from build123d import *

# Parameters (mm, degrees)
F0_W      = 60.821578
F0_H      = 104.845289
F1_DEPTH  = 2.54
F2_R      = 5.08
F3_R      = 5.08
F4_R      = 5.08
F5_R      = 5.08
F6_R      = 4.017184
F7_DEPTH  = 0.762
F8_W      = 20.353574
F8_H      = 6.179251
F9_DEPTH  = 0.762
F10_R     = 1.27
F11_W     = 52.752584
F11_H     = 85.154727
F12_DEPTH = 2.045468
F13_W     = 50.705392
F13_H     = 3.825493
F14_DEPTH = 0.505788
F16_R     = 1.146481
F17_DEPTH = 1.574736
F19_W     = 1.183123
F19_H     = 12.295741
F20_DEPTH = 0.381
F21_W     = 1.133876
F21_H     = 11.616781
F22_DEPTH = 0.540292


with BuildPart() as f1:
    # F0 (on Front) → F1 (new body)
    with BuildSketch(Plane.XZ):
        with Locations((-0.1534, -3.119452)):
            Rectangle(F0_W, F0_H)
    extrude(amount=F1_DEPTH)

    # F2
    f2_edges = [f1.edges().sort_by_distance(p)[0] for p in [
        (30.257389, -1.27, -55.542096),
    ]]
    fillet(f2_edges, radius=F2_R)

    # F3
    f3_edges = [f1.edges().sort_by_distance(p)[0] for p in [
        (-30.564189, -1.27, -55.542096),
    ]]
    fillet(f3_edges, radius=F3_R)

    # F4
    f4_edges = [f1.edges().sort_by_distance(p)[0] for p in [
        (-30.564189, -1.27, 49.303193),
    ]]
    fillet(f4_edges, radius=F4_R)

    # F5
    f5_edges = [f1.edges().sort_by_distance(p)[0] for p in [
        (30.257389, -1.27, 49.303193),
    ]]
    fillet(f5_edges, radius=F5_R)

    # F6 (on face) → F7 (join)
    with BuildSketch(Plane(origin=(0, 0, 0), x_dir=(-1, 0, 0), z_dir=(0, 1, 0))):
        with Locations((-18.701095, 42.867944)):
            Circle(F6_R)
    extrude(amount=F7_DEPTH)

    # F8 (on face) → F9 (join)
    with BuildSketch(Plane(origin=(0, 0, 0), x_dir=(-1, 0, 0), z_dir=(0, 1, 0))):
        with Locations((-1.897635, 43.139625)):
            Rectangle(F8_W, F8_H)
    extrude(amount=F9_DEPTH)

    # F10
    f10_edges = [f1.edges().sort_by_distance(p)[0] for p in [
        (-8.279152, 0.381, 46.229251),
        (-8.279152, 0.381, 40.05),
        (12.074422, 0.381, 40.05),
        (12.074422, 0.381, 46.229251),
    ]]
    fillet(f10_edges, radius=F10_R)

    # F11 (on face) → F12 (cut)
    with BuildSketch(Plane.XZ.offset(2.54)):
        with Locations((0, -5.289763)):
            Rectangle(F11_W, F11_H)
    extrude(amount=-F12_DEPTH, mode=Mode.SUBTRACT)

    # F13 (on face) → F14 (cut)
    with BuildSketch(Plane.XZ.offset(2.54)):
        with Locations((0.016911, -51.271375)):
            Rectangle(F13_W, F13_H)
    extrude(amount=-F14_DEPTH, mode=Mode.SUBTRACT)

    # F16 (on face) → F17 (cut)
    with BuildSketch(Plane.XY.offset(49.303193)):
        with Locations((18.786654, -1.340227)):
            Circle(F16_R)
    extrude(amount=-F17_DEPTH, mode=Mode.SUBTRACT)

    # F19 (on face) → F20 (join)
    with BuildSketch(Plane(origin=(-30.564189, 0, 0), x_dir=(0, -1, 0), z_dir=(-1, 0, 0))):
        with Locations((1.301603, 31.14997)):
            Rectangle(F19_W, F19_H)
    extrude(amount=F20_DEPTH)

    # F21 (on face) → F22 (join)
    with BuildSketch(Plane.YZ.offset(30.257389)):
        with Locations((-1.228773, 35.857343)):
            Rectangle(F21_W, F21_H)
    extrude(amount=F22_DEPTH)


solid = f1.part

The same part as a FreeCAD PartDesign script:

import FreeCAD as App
import Part
import Sketcher
Q = App.Units.Quantity


def edges_at(feature, points):
    """Names of the edges that pass closest to the given points."""
    edges = feature.Shape.Edges
    near = lambda p: min(range(len(edges)), key=lambda i: edges[i].distToShape(Part.Vertex(*p))[0])
    return sorted({f"Edge{near(p) + 1}" for p in points})


def add_polygon(sketch, points):
    """Adds a closed chain of lines whose ends are joined by coincident constraints."""
    first, n = sketch.GeometryCount, len(points)
    for a, b in zip(points, points[1:] + points[:1]):
        sketch.addGeometry(Part.LineSegment(App.Vector(*a, 0), App.Vector(*b, 0)), False)
    for i in range(n):
        sketch.addConstraint(Sketcher.Constraint("Coincident", first + i, 2, first + (i + 1) % n, 1))

doc = App.newDocument("Part")
body = doc.addObject("PartDesign::Body", "Body")

# Sketch on XZ plane
sketch1 = doc.addObject("Sketcher::SketchObject", "Sketch")
body.addObject(sketch1)
sketch1.AttachmentSupport = (doc.XZ_Plane, [""])
sketch1.MapMode = "FlatFace"
add_polygon(sketch1, [(-30.564189, 49.303193), (-30.564189, -55.542096), (30.257389, -55.542096), (30.257389, 49.303193)])  # lines 0-3
sketch1.addConstraint([
    Sketcher.Constraint("Vertical", 0),
    Sketcher.Constraint("Horizontal", 1),
    Sketcher.Constraint("Vertical", 2),
    Sketcher.Constraint("Horizontal", 3),
    Sketcher.Constraint("DistanceX", 1, 1, 1, 2, 60.821578),
    Sketcher.Constraint("DistanceY", 0, 2, 0, 1, 104.845289),
    Sketcher.Constraint("DistanceX", 0, 2, -1, 1, 30.564189),
    Sketcher.Constraint("DistanceY", 0, 2, -1, 1, 55.542096),
])
pad1 = doc.addObject("PartDesign::Pad", "Pad")
body.addObject(pad1)
pad1.Profile = sketch1
pad1.Length = Q("0.1 in")
doc.recompute()

fillet = doc.addObject("PartDesign::Fillet", "Fillet")
body.addObject(fillet)
fillet.Base = (pad1, edges_at(pad1, [(30.257, -1.27, -55.542)]))
fillet.Radius = Q("0.2 in")
doc.recompute()

fillet2 = doc.addObject("PartDesign::Fillet", "Fillet001")
body.addObject(fillet2)
fillet2.Base = (fillet, edges_at(fillet, [(-30.564, -1.27, -55.542)]))
fillet2.Radius = Q("0.2 in")
doc.recompute()

fillet3 = doc.addObject("PartDesign::Fillet", "Fillet002")
body.addObject(fillet3)
fillet3.Base = (fillet2, edges_at(fillet2, [(-30.564, -1.27, 49.303)]))
fillet3.Radius = Q("0.2 in")
doc.recompute()

fillet4 = doc.addObject("PartDesign::Fillet", "Fillet003")
body.addObject(fillet4)
fillet4.Base = (fillet3, edges_at(fillet3, [(30.257, -1.27, 49.303)]))
fillet4.Radius = Q("0.2 in")

# Sketch on XZ plane
sketch2 = doc.addObject("Sketcher::SketchObject", "Sketch001")
body.addObject(sketch2)
sketch2.AttachmentSupport = (doc.XZ_Plane, [""])
sketch2.MapMode = "FlatFace"
sketch2.addGeometry(Part.Circle(App.Vector(18.701095, 42.867944, 0), App.Vector(0, 0, 1), 4.017184), False)
sketch2.addConstraint([
    Sketcher.Constraint("Diameter", 0, 8.034368),
    Sketcher.Constraint("DistanceX", -1, 1, 0, 3, 18.701095),
    Sketcher.Constraint("DistanceY", -1, 1, 0, 3, 42.867944),
])
pad2 = doc.addObject("PartDesign::Pad", "Pad001")
body.addObject(pad2)
pad2.Profile = sketch2
pad2.Length = Q("0.03 in")
pad2.Reversed = True

# Sketch on XZ plane
sketch3 = doc.addObject("Sketcher::SketchObject", "Sketch002")
body.addObject(sketch3)
sketch3.AttachmentSupport = (doc.XZ_Plane, [""])
sketch3.MapMode = "FlatFace"
add_polygon(sketch3, [(12.074422, 46.22925), (12.074422, 40.049999), (-8.279152, 40.049999), (-8.279152, 46.22925)])  # lines 0-3
sketch3.addConstraint([
    Sketcher.Constraint("Vertical", 0),
    Sketcher.Constraint("Horizontal", 1),
    Sketcher.Constraint("Vertical", 2),
    Sketcher.Constraint("Horizontal", 3),
    Sketcher.Constraint("DistanceY", 0, 2, 0, 1, 6.179251),
    Sketcher.Constraint("DistanceY", -1, 1, 0, 2, 40.049999),
    Sketcher.Constraint("DistanceX", 1, 2, 1, 1, 20.353574),
    Sketcher.Constraint("DistanceX", -1, 1, 0, 2, 12.074422),
])
pad3 = doc.addObject("PartDesign::Pad", "Pad002")
body.addObject(pad3)
pad3.Profile = sketch3
pad3.Length = Q("0.03 in")
pad3.Reversed = True
doc.recompute()

fillet5 = doc.addObject("PartDesign::Fillet", "Fillet004")
body.addObject(fillet5)
fillet5.Base = (pad3, edges_at(pad3, [
    (-8.279, 0.381, 46.229),
    (-8.279, 0.381, 40.05),
    (12.074, 0.381, 40.05),
    (12.074, 0.381, 46.229),
]))
fillet5.Radius = Q("0.05 in")

# Sketch on XZ plane
sketch4 = doc.addObject("Sketcher::SketchObject", "Sketch003")
body.addObject(sketch4)
sketch4.AttachmentSupport = (doc.XZ_Plane, [""])
sketch4.MapMode = "FlatFace"
sketch4.AttachmentOffset = App.Placement(App.Vector(0, 0, 0.1 * 25.4), App.Rotation())
add_polygon(sketch4, [(-26.376292, 37.287601), (-26.376292, -47.867126), (26.376292, -47.867126), (26.376292, 37.287601)])  # lines 0-3
sketch4.addConstraint([
    Sketcher.Constraint("Vertical", 0),
    Sketcher.Constraint("Horizontal", 1),
    Sketcher.Constraint("Vertical", 2),
    Sketcher.Constraint("Horizontal", 3),
    Sketcher.Constraint("DistanceY", -1, 1, 2, 2, 37.287601),
    Sketcher.Constraint("DistanceX", 1, 1, 1, 2, 52.752584),
    Sketcher.Constraint("DistanceY", 0, 2, 0, 1, 85.154727),
    Sketcher.Constraint("DistanceX", 0, 2, -1, 1, 26.376292),
])
pocket1 = doc.addObject("PartDesign::Pocket", "Pocket")
body.addObject(pocket1)
pocket1.Profile = sketch4
pocket1.Length = 2.045468

# Sketch on XZ plane
sketch5 = doc.addObject("Sketcher::SketchObject", "Sketch004")
body.addObject(sketch5)
sketch5.AttachmentSupport = (doc.XZ_Plane, [""])
sketch5.MapMode = "FlatFace"
sketch5.AttachmentOffset = App.Placement(App.Vector(0, 0, 0.1 * 25.4), App.Rotation())
add_polygon(sketch5, [(-25.335785, -49.358629), (-25.335785, -53.184122), (25.369607, -53.184122), (25.369607, -49.358629)])  # lines 0-3
sketch5.addConstraint([
    Sketcher.Constraint("Vertical", 0),
    Sketcher.Constraint("Horizontal", 1),
    Sketcher.Constraint("Vertical", 2),
    Sketcher.Constraint("Horizontal", 3),
    Sketcher.Constraint("DistanceX", 1, 1, 1, 2, 50.705392),
    Sketcher.Constraint("DistanceY", 0, 2, 0, 1, 3.825493),
    Sketcher.Constraint("DistanceY", 0, 2, -1, 1, 53.184122),
    Sketcher.Constraint("DistanceX", 0, 2, -1, 1, 25.335785),
])
pocket2 = doc.addObject("PartDesign::Pocket", "Pocket001")
body.addObject(pocket2)
pocket2.Profile = sketch5
pocket2.Length = 0.505788

# Sketch on XY plane
sketch6 = doc.addObject("Sketcher::SketchObject", "Sketch005")
body.addObject(sketch6)
sketch6.AttachmentSupport = (doc.XY_Plane, [""])
sketch6.MapMode = "FlatFace"
sketch6.AttachmentOffset = App.Placement(App.Vector(0, 0, 49.303193), App.Rotation())
sketch6.addGeometry(Part.Circle(App.Vector(18.786654, -1.340227, 0), App.Vector(0, 0, 1), 1.146481), False)
sketch6.addConstraint([
    Sketcher.Constraint("Diameter", 0, 2.292962),
    Sketcher.Constraint("DistanceX", -1, 1, 0, 3, 18.786654),
    Sketcher.Constraint("DistanceY", 0, 3, -1, 1, 1.340227),
])
pocket3 = doc.addObject("PartDesign::Pocket", "Pocket002")
body.addObject(pocket3)
pocket3.Profile = sketch6
pocket3.Length = 1.574736

# Sketch on YZ plane
sketch7 = doc.addObject("Sketcher::SketchObject", "Sketch006")
body.addObject(sketch7)
sketch7.AttachmentSupport = (doc.YZ_Plane, [""])
sketch7.MapMode = "FlatFace"
sketch7.AttachmentOffset = App.Placement(App.Vector(0, 0, -30.564189), App.Rotation())
add_polygon(sketch7, [(-0.710041, 37.29784), (-0.710041, 25.002099), (-1.893164, 25.002099), (-1.893164, 37.29784)])  # lines 0-3
sketch7.addConstraint([
    Sketcher.Constraint("Vertical", 0),
    Sketcher.Constraint("Horizontal", 1),
    Sketcher.Constraint("Vertical", 2),
    Sketcher.Constraint("Horizontal", 3),
    Sketcher.Constraint("DistanceY", 0, 2, 0, 1, 12.295741),
    Sketcher.Constraint("DistanceY", -1, 1, 0, 2, 25.002099),
    Sketcher.Constraint("DistanceX", 1, 2, 1, 1, 1.183123),
    Sketcher.Constraint("DistanceX", 0, 2, -1, 1, 0.710041),
])
pad4 = doc.addObject("PartDesign::Pad", "Pad003")
body.addObject(pad4)
pad4.Profile = sketch7
pad4.Length = Q("0.015 in")
pad4.Reversed = True

# Sketch on YZ plane
sketch8 = doc.addObject("Sketcher::SketchObject", "Sketch007")
body.addObject(sketch8)
sketch8.AttachmentSupport = (doc.YZ_Plane, [""])
sketch8.MapMode = "FlatFace"
sketch8.AttachmentOffset = App.Placement(App.Vector(0, 0, 30.257389), App.Rotation())
add_polygon(sketch8, [(-1.795711, 41.665734), (-1.795711, 30.048952), (-0.661835, 30.048952), (-0.661835, 41.665734)])  # lines 0-3
sketch8.addConstraint([
    Sketcher.Constraint("Vertical", 0),
    Sketcher.Constraint("Horizontal", 1),
    Sketcher.Constraint("Vertical", 2),
    Sketcher.Constraint("Horizontal", 3),
    Sketcher.Constraint("DistanceY", 0, 2, 0, 1, 11.616781),
    Sketcher.Constraint("DistanceX", 1, 1, 1, 2, 1.133876),
    Sketcher.Constraint("DistanceX", 0, 2, -1, 1, 1.795711),
    Sketcher.Constraint("DistanceY", -1, 1, 0, 2, 30.048952),
])
pad5 = doc.addObject("PartDesign::Pad", "Pad004")
body.addObject(pad5)
pad5.Profile = sketch8
pad5.Length = 0.540292

doc.recompute()
